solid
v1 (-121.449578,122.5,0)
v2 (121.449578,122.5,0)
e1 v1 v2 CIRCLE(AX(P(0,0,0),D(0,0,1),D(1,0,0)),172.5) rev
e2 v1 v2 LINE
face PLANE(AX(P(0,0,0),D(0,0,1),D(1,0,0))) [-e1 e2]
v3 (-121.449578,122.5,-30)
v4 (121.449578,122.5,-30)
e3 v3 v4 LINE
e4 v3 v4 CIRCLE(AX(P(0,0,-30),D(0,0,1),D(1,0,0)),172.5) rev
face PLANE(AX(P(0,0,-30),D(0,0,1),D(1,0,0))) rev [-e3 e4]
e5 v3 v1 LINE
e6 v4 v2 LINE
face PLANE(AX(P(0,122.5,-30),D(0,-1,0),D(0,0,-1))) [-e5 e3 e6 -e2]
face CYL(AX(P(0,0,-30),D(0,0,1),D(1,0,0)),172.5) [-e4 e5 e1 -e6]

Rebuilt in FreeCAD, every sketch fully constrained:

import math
import FreeCAD as App
import Part
import Sketcher
Q = App.Units.Quantity

doc = App.newDocument("Part")
params = doc.addObject("Spreadsheet::Sheet", "Params")
for row, (alias, value) in enumerate([
    ("sketch1_radius", "172.5 mm"),
    ("pad1_length", "30 mm"),
], start=1):
    params.set(f"A{row}", alias)
    params.set(f"B{row}", "=" + value)
    params.setAlias(f"B{row}", alias)

body = doc.addObject("PartDesign::Body", "Body")

sketch1 = body.newObject("Sketcher::SketchObject", "Sketch")
sketch1.AttachmentSupport = (doc.getObject("XY_Plane"), [""])
sketch1.MapMode = "FlatFace"
sketch1.addGeometry([
    Part.ArcOfCircle(Part.Circle(App.Vector(0, 0, 0), App.Vector(0, 0, 1), 172.5), math.radians(90), math.radians(134.753292)),
    Part.LineSegment(App.Vector(-121.449578, 122.5, 0), App.Vector(121.449578, 122.5, 0)),
    Part.ArcOfCircle(Part.Circle(App.Vector(0, 0, 0), App.Vector(0, 0, 1), 172.5), math.radians(45.246708), math.radians(90)),
], False)
sketch1.addConstraint([
    Sketcher.Constraint("Coincident", 0, 2, 1, 1),
    Sketcher.Constraint("Coincident", 1, 2, 2, 1),
    Sketcher.Constraint("Tangent", 2, 2, 0, 1),
    Sketcher.Constraint("Horizontal", 1),
    Sketcher.Constraint("Coincident", 0, 3, -1, 1),
    Sketcher.Constraint("Equal", 0, 2),
    Sketcher.Constraint("PointOnObject", 2, 2, -2),
    Sketcher.Constraint("Radius", 0, Q("172.5 mm")),
    Sketcher.Constraint("DistanceY", 0, 2, 2, 2, Q("50 mm")),
])
sketch1.setExpression("Constraints[7]", "Params.sketch1_radius")
pad1 = body.newObject("PartDesign::Pad", "Pad")
pad1.Profile = sketch1
pad1.setExpression("Length", "Params.pad1_length")
pad1.Reversed = True

doc.recompute()
